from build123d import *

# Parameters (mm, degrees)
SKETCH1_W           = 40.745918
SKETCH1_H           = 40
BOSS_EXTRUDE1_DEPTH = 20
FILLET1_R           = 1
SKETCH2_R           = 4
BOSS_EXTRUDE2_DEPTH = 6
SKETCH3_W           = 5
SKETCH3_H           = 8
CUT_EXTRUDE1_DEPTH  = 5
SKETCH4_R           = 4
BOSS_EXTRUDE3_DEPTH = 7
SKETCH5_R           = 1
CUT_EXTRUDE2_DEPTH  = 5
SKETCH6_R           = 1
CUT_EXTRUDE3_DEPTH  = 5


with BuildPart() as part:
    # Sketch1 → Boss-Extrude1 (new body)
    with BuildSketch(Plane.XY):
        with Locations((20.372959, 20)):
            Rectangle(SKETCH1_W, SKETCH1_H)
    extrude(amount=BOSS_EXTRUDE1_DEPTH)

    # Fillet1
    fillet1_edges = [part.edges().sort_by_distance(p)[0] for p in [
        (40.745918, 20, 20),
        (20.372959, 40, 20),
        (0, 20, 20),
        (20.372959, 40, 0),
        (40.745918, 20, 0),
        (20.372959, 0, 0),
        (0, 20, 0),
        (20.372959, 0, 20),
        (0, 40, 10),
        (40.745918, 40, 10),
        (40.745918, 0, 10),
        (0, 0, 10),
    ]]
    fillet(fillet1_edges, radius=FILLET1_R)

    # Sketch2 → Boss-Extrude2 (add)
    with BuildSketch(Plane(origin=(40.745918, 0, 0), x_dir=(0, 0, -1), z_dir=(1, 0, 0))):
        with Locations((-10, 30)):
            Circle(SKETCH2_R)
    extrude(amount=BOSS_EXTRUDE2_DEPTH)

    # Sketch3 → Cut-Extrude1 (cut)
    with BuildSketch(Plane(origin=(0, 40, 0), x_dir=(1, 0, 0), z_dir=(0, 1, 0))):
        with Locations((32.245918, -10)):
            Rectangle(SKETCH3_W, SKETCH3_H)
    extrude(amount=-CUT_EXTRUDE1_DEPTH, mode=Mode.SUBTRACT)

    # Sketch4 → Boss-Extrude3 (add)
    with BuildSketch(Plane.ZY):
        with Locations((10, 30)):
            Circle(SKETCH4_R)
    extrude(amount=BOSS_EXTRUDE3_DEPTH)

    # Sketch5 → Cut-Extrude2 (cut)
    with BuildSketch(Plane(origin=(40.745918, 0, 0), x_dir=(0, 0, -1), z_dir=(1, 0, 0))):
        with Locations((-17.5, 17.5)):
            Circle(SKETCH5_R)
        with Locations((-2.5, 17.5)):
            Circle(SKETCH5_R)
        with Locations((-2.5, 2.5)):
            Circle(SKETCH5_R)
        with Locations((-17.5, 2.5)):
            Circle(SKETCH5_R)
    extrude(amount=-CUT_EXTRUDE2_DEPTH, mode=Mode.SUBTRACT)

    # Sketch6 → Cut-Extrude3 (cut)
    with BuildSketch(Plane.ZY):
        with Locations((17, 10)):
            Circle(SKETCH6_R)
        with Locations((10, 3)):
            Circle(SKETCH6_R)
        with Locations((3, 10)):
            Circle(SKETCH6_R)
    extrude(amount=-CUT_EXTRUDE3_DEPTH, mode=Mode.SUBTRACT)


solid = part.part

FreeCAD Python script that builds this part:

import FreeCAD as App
import Part
import Sketcher
Q = App.Units.Quantity

doc = App.newDocument("Part")
body = doc.addObject("PartDesign::Body", "Body")

# Sketch on XY plane
sketch1 = doc.addObject("Sketcher::SketchObject", "Sketch")
body.addObject(sketch1)
sketch1.AttachmentSupport = (doc.XY_Plane, [""])
sketch1.MapMode = "FlatFace"
sketch1.addGeometry([
    Part.LineSegment(App.Vector(0, 40, 0), App.Vector(0, 0, 0)),
    Part.LineSegment(App.Vector(0, 0, 0), App.Vector(41, 0, 0)),
    Part.LineSegment(App.Vector(41, 0, 0), App.Vector(41, 40, 0)),
    Part.LineSegment(App.Vector(41, 40, 0), App.Vector(0, 40, 0)),
], False)
sketch1.addConstraint([
    Sketcher.Constraint("Coincident", 0, 2, 1, 1),
    Sketcher.Constraint("Coincident", 1, 2, 2, 1),
    Sketcher.Constraint("Coincident", 2, 2, 3, 1),
    Sketcher.Constraint("Coincident", 3, 2, 0, 1),
    Sketcher.Constraint("Vertical", 0),
    Sketcher.Constraint("Horizontal", 1),
    Sketcher.Constraint("Vertical", 2),
    Sketcher.Constraint("Horizontal", 3),
    Sketcher.Constraint("Coincident", 0, 2, -1, 1),
    Sketcher.Constraint("DistanceY", 0, 2, 0, 1, Q("40 mm")),
    Sketcher.Constraint("DistanceX", 1, 1, 1, 2, Q("40.745918 mm")),
])
pad1 = doc.addObject("PartDesign::Pad", "Pad")
body.addObject(pad1)
pad1.Profile = sketch1
pad1.Length = 20
doc.recompute()

fillet = doc.addObject("PartDesign::Fillet", "Fillet")
body.addObject(fillet)
fillet.Base = (pad1, ["Edge1"])
fillet.UseAllEdges = True
fillet.Radius = 1

# Sketch on YZ plane
sketch2 = doc.addObject("Sketcher::SketchObject", "Sketch001")
body.addObject(sketch2)
sketch2.AttachmentSupport = (doc.YZ_Plane, [""])
sketch2.MapMode = "FlatFace"
sketch2.AttachmentOffset = App.Placement(App.Vector(0, 0, 40.745918), App.Rotation())
sketch2.addGeometry(Part.Circle(App.Vector(30, 10, 0), App.Vector(0, 0, 1), 4), False)
sketch2.addConstraint([
    Sketcher.Constraint("Diameter", 0, Q("8 mm")),
    Sketcher.Constraint("DistanceX", -1, 1, 0, 3, Q("30 mm")),
    Sketcher.Constraint("DistanceY", -1, 1, 0, 3, Q("10 mm")),
])
pad2 = doc.addObject("PartDesign::Pad", "Pad001")
body.addObject(pad2)
pad2.Profile = sketch2
pad2.Length = 6

# Sketch on XZ plane
sketch3 = doc.addObject("Sketcher::SketchObject", "Sketch002")
body.addObject(sketch3)
sketch3.AttachmentSupport = (doc.XZ_Plane, [""])
sketch3.MapMode = "FlatFace"
sketch3.AttachmentOffset = App.Placement(App.Vector(0, 0, -40), App.Rotation())
sketch3.addGeometry([
    Part.LineSegment(App.Vector(30, 6, 0), App.Vector(30, 14, 0)),
    Part.LineSegment(App.Vector(30, 14, 0), App.Vector(35, 14, 0)),
    Part.LineSegment(App.Vector(35, 14, 0), App.Vector(35, 6, 0)),
    Part.LineSegment(App.Vector(35, 6, 0), App.Vector(30, 6, 0)),
], False)
sketch3.addConstraint([
    Sketcher.Constraint("Coincident", 0, 2, 1, 1),
    Sketcher.Constraint("Coincident", 1, 2, 2, 1),
    Sketcher.Constraint("Coincident", 2, 2, 3, 1),
    Sketcher.Constraint("Coincident", 3, 2, 0, 1),
    Sketcher.Constraint("Vertical", 0),
    Sketcher.Constraint("Horizontal", 1),
    Sketcher.Constraint("Vertical", 2),
    Sketcher.Constraint("Horizontal", 3),
    Sketcher.Constraint("DistanceX", 1, 1, 1, 2, Q("5 mm")),
    Sketcher.Constraint("DistanceY", 0, 1, 0, 2, Q("8 mm")),
    Sketcher.Constraint("DistanceY", -1, 1, 0, 2, Q("14 mm")),
    Sketcher.Constraint("DistanceX", -1, 1, 1, 2, Q("34.745918 mm")),
])
pocket1 = doc.addObject("PartDesign::Pocket", "Pocket")
body.addObject(pocket1)
pocket1.Profile = sketch3
pocket1.Length = 5
pocket1.Reversed = True

# Sketch on YZ plane
sketch4 = doc.addObject("Sketcher::SketchObject", "Sketch003")
body.addObject(sketch4)
sketch4.AttachmentSupport = (doc.YZ_Plane, [""])
sketch4.MapMode = "FlatFace"
sketch4.addGeometry(Part.Circle(App.Vector(30, 10, 0), App.Vector(0, 0, 1), 4), False)
sketch4.addConstraint([
    Sketcher.Constraint("Diameter", 0, Q("8 mm")),
    Sketcher.Constraint("DistanceX", -1, 1, 0, 3, Q("30 mm")),
    Sketcher.Constraint("DistanceY", -1, 1, 0, 3, Q("10 mm")),
])
pad3 = doc.addObject("PartDesign::Pad", "Pad002")
body.addObject(pad3)
pad3.Profile = sketch4
pad3.Length = 7
pad3.Reversed = True

# Sketch on YZ plane
sketch5 = doc.addObject("Sketcher::SketchObject", "Sketch004")
body.addObject(sketch5)
sketch5.AttachmentSupport = (doc.YZ_Plane, [""])
sketch5.MapMode = "FlatFace"
sketch5.AttachmentOffset = App.Placement(App.Vector(0, 0, 40.745918), App.Rotation())
sketch5.addGeometry([
    Part.Circle(App.Vector(17.5, 17.5, 0), App.Vector(0, 0, 1), 1),
    Part.Circle(App.Vector(17.5, 2.5, 0), App.Vector(0, 0, 1), 1),
    Part.Circle(App.Vector(2.5, 2.5, 0), App.Vector(0, 0, 1), 1),
    Part.Circle(App.Vector(2.5, 17.5, 0), App.Vector(0, 0, 1), 1),
], False)
sketch5.addConstraint([
    Sketcher.Constraint("Equal", 0, 1),
    Sketcher.Constraint("Equal", 1, 2),
    Sketcher.Constraint("Equal", 2, 3),
    Sketcher.Constraint("Horizontal", 1, 3, 2, 3),
    Sketcher.Constraint("Horizontal", 0, 3, 3, 3),
    Sketcher.Constraint("Vertical", 0, 3, 1, 3),
    Sketcher.Constraint("Vertical", 2, 3, 3, 3),
    Sketcher.Constraint("Diameter", 0, Q("2 mm")),
    Sketcher.Constraint("DistanceY", 1, 3, 0, 3, Q("15 mm")),
    Sketcher.Constraint("DistanceX", 2, 3, 1, 3, Q("15 mm")),
    Sketcher.Constraint("DistanceX", -1, 1, 0, 3, Q("17.5 mm")),
    Sketcher.Constraint("DistanceY", -1, 1, 0, 3, Q("17.5 mm")),
])
pocket2 = doc.addObject("PartDesign::Pocket", "Pocket001")
body.addObject(pocket2)
pocket2.Profile = sketch5
pocket2.Length = 5

# Sketch on YZ plane
sketch6 = doc.addObject("Sketcher::SketchObject", "Sketch005")
body.addObject(sketch6)
sketch6.AttachmentSupport = (doc.YZ_Plane, [""])
sketch6.MapMode = "FlatFace"
sketch6.addGeometry([
    Part.Circle(App.Vector(10, 17, 0), App.Vector(0, 0, 1), 1),
    Part.Circle(App.Vector(3, 10, 0), App.Vector(0, 0, 1), 1),
    Part.Circle(App.Vector(10, 3, 0), App.Vector(0, 0, 1), 1),
], False)
sketch6.addConstraint([
    Sketcher.Constraint("Equal", 0, 1),
    Sketcher.Constraint("Equal", 1, 2),
    Sketcher.Constraint("Vertical", 0, 3, 2, 3),
    Sketcher.Constraint("Diameter", 0, Q("2 mm")),
    Sketcher.Constraint("DistanceX", -1, 1, 0, 3, Q("10 mm")),
    Sketcher.Constraint("DistanceY", -1, 1, 0, 3, Q("17 mm")),
    Sketcher.Constraint("DistanceX", -1, 1, 1, 3, Q("3 mm")),
    Sketcher.Constraint("DistanceY", -1, 1, 1, 3, Q("10 mm")),
    Sketcher.Constraint("DistanceY", -1, 1, 2, 3, Q("3 mm")),
])
pocket3 = doc.addObject("PartDesign::Pocket", "Pocket002")
body.addObject(pocket3)
pocket3.Profile = sketch6
pocket3.Length = 5
pocket3.Reversed = True

doc.recompute()
